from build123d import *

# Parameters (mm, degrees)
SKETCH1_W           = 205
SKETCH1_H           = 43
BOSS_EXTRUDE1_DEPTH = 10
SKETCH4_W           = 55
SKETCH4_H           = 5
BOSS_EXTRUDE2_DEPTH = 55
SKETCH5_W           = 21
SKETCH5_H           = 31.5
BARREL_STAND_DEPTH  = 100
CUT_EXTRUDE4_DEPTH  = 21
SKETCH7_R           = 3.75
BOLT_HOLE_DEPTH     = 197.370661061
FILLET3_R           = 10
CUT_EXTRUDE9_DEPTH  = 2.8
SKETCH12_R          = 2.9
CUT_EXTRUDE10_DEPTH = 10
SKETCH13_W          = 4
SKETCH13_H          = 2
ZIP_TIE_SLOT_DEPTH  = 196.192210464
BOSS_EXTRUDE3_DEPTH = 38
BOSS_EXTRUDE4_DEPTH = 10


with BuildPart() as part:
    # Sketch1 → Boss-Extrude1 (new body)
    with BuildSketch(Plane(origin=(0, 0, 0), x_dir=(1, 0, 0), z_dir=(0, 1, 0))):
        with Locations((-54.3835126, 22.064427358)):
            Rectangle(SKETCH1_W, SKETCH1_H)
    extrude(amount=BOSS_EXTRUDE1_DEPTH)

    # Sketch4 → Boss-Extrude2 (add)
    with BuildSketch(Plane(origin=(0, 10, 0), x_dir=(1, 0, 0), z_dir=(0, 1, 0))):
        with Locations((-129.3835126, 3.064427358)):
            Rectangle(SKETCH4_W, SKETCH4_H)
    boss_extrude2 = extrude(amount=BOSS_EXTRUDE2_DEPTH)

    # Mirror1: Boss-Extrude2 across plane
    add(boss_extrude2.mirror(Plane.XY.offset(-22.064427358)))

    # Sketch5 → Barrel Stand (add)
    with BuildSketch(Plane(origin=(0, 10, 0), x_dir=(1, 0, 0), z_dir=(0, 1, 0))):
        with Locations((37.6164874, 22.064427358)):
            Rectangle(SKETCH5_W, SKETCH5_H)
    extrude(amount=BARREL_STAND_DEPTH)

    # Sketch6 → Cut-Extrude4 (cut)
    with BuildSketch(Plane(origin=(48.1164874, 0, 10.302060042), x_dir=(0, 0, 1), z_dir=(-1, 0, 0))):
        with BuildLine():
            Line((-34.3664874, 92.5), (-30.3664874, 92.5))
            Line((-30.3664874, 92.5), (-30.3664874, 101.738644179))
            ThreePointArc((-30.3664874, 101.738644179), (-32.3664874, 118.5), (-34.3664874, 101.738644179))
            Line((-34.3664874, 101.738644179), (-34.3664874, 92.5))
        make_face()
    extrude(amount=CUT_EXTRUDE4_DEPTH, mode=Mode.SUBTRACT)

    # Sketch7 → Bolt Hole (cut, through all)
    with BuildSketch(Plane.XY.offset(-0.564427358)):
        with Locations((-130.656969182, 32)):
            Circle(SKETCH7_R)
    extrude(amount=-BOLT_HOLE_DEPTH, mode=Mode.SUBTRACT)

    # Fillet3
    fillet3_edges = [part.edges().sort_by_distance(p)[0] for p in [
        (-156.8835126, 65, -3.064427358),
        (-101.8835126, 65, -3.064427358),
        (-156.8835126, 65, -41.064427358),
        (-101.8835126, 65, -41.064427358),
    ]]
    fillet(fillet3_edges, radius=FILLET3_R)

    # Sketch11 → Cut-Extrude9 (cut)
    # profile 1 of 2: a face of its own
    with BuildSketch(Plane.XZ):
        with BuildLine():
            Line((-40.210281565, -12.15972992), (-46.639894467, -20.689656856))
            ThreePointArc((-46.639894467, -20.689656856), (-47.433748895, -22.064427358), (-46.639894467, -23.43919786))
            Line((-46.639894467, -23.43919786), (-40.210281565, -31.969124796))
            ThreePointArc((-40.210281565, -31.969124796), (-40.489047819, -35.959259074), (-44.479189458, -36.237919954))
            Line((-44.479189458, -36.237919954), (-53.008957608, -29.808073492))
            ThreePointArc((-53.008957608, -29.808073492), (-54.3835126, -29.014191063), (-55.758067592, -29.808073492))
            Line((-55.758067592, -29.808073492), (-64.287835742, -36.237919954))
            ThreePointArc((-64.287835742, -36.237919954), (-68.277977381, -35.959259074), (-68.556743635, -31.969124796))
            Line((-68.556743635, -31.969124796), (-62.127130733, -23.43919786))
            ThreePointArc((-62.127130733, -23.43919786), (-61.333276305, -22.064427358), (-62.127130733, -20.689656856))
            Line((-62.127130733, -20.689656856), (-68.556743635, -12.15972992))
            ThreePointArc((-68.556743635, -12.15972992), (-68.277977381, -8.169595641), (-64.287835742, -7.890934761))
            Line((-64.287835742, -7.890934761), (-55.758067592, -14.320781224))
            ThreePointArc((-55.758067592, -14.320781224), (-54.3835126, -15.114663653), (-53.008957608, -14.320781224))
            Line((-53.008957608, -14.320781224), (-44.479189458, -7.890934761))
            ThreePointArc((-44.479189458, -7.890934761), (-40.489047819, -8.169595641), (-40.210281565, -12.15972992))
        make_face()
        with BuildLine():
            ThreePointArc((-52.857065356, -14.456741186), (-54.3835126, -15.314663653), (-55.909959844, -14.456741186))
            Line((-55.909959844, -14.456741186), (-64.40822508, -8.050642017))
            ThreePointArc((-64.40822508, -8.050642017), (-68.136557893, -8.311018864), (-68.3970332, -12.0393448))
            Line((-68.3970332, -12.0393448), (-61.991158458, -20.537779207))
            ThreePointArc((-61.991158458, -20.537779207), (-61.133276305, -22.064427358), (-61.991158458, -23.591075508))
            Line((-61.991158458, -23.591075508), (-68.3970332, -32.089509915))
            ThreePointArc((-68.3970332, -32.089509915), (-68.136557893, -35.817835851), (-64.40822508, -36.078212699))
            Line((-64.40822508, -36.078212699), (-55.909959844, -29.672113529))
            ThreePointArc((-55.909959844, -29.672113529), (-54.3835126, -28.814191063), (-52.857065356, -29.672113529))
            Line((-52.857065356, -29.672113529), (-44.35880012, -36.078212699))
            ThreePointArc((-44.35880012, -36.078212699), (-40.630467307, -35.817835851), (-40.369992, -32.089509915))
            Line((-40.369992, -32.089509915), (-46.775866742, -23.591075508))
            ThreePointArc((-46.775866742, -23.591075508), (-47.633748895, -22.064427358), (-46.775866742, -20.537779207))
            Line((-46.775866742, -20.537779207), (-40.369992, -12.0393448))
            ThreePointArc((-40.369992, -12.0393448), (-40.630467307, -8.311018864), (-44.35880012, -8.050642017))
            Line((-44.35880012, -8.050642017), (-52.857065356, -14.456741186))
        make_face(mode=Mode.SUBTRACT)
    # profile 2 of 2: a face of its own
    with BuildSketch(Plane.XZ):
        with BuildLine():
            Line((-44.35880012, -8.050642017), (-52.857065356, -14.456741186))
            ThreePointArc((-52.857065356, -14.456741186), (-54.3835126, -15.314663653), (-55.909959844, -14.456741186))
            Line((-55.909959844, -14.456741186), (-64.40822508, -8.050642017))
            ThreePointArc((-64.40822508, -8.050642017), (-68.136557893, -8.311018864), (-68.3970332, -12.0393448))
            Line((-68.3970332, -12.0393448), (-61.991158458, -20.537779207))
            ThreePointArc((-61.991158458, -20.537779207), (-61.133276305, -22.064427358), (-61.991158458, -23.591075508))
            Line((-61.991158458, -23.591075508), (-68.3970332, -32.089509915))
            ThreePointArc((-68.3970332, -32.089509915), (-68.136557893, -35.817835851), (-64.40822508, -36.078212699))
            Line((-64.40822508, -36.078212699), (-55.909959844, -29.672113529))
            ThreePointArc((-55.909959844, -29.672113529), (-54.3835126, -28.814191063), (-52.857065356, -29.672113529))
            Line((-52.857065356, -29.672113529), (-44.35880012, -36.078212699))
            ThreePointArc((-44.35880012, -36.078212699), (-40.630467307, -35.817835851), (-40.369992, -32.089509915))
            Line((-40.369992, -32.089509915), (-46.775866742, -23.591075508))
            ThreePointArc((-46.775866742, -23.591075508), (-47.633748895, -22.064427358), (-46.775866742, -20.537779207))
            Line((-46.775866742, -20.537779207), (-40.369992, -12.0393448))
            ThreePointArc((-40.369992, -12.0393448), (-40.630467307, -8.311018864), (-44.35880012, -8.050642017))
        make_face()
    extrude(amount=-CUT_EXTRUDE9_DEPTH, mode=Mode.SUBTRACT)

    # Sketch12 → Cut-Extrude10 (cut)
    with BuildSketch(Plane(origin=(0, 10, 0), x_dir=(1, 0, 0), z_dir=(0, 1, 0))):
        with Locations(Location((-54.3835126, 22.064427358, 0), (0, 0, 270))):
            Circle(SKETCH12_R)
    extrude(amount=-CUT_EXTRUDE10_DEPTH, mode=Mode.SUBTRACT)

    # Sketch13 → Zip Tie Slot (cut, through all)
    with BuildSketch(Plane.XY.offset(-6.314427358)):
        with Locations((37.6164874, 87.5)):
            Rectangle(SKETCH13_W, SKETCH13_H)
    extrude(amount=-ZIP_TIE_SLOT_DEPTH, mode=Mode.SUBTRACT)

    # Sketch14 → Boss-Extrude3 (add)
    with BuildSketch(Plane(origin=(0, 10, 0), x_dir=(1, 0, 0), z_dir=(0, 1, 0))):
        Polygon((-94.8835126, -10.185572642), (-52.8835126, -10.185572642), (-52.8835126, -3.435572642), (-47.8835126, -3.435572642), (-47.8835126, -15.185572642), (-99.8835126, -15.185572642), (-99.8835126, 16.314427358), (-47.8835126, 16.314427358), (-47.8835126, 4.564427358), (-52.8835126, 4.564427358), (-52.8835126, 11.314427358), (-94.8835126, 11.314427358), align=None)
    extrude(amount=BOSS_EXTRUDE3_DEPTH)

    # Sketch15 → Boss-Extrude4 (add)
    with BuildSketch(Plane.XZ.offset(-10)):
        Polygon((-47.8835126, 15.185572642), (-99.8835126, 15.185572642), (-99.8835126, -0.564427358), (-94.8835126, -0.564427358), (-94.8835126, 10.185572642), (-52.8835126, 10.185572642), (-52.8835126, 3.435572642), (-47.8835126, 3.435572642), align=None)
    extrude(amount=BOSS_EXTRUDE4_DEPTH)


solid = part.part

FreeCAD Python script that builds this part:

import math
import FreeCAD as App
import Part
import Sketcher
Q = App.Units.Quantity


def edges_at(feature, points):
    """Names of the edges that pass closest to the given points."""
    edges = feature.Shape.Edges
    near = lambda p: min(range(len(edges)), key=lambda i: edges[i].distToShape(Part.Vertex(*p))[0])
    return sorted({f"Edge{near(p) + 1}" for p in points})


def add_polygon(sketch, points):
    """Adds a closed chain of lines whose ends are joined by coincident constraints."""
    first, n = sketch.GeometryCount, len(points)
    for a, b in zip(points, points[1:] + points[:1]):
        sketch.addGeometry(Part.LineSegment(App.Vector(*a, 0), App.Vector(*b, 0)), False)
    for i in range(n):
        sketch.addConstraint(Sketcher.Constraint("Coincident", first + i, 2, first + (i + 1) % n, 1))

doc = App.newDocument("Part")
body = doc.addObject("PartDesign::Body", "Body")

# Sketch on XZ plane
sketch1 = doc.addObject("Sketcher::SketchObject", "Sketch")
body.addObject(sketch1)
sketch1.AttachmentSupport = (doc.XZ_Plane, [""])
sketch1.MapMode = "FlatFace"
add_polygon(sketch1, [(-157, -44), (-157, -1), (48, -1), (48, -44)])  # lines 0-3
sketch1.addConstraint([
    Sketcher.Constraint("Vertical", 0),
    Sketcher.Constraint("Horizontal", 1),
    Sketcher.Constraint("Vertical", 2),
    Sketcher.Constraint("Horizontal", 3),
    Sketcher.Constraint("DistanceX", 1, 1, 1, 2, Q("205 mm")),
    Sketcher.Constraint("DistanceY", 0, 1, 0, 2, Q("43 mm")),
    Sketcher.Constraint("DistanceX", 0, 2, -1, 1, Q("156.883513 mm")),
    Sketcher.Constraint("DistanceY", 0, 2, -1, 1, Q("0.564427 mm")),
])
pad1 = doc.addObject("PartDesign::Pad", "Pad")
body.addObject(pad1)
pad1.Profile = sketch1
pad1.Length = 10
pad1.Reversed = True

# Sketch on XZ plane
sketch2 = doc.addObject("Sketcher::SketchObject", "Sketch001")
body.addObject(sketch2)
sketch2.AttachmentSupport = (doc.XZ_Plane, [""])
sketch2.MapMode = "FlatFace"
sketch2.AttachmentOffset = App.Placement(App.Vector(0, 0, -10), App.Rotation())
add_polygon(sketch2, [(-157, -6), (-157, -1), (-102, -1), (-102, -6)])  # lines 0-3
sketch2.addConstraint([
    Sketcher.Constraint("Vertical", 0),
    Sketcher.Constraint("Horizontal", 1),
    Sketcher.Constraint("Vertical", 2),
    Sketcher.Constraint("Horizontal", 3),
    Sketcher.Constraint("DistanceX", 1, 1, 1, 2, Q("55 mm")),
    Sketcher.Constraint("DistanceY", 0, 1, 0, 2, Q("5 mm")),
    Sketcher.Constraint("DistanceX", 0, 2, -1, 1, Q("156.883513 mm")),
    Sketcher.Constraint("DistanceY", 0, 2, -1, 1, Q("0.564427 mm")),
])
pad2 = doc.addObject("PartDesign::Pad", "Pad001")
body.addObject(pad2)
pad2.Profile = sketch2
pad2.Length = 55
pad2.Reversed = True
doc.recompute()

datumplane = doc.addObject("PartDesign::Plane", "DatumPlane")
body.addObject(datumplane)
datumplane.AttachmentSupport = (doc.XY_Plane, [""])
datumplane.MapMode = "FlatFace"
datumplane.AttachmentOffset = App.Placement(App.Vector(0, 0, -22.064427), App.Rotation())
mirrored = doc.addObject("PartDesign::Mirrored", "Mirrored")
body.addObject(mirrored)
mirrored.Originals = [pad2]
mirrored.MirrorPlane = (datumplane, [""])
body.Tip = mirrored

# Sketch on XZ plane
sketch3 = doc.addObject("Sketcher::SketchObject", "Sketch002")
body.addObject(sketch3)
sketch3.AttachmentSupport = (doc.XZ_Plane, [""])
sketch3.MapMode = "FlatFace"
sketch3.AttachmentOffset = App.Placement(App.Vector(0, 0, -10), App.Rotation())
add_polygon(sketch3, [(27, -38), (27, -6), (48, -6), (48, -38)])  # lines 0-3
sketch3.addConstraint([
    Sketcher.Constraint("Vertical", 0),
    Sketcher.Constraint("Horizontal", 1),
    Sketcher.Constraint("Vertical", 2),
    Sketcher.Constraint("Horizontal", 3),
    Sketcher.Constraint("DistanceX", 1, 1, 1, 2, Q("21 mm")),
    Sketcher.Constraint("DistanceY", 0, 1, 0, 2, Q("31.5 mm")),
    Sketcher.Constraint("DistanceX", -1, 1, 0, 2, Q("27.116487 mm")),
    Sketcher.Constraint("DistanceY", 0, 2, -1, 1, Q("6.314427 mm")),
])
pad3 = doc.addObject("PartDesign::Pad", "Pad002")
body.addObject(pad3)
pad3.Profile = sketch3
pad3.Length = 100
pad3.Reversed = True

# Sketch on YZ plane
sketch4 = doc.addObject("Sketcher::SketchObject", "Sketch003")
body.addObject(sketch4)
sketch4.AttachmentSupport = (doc.YZ_Plane, [""])
sketch4.MapMode = "FlatFace"
sketch4.AttachmentOffset = App.Placement(App.Vector(0, 0, 48.116487), App.Rotation())
sketch4.addGeometry([
    Part.LineSegment(App.Vector(92.5, -24.1, 0), App.Vector(92.5, -20.1, 0)),
    Part.LineSegment(App.Vector(92.5, -20.1, 0), App.Vector(101.7, -20.1, 0)),
    Part.ArcOfCircle(Part.Circle(App.Vector(110, -22.1, 0), App.Vector(0, 0, 1), 8.5), math.radians(-166), math.radians(166)),
    Part.LineSegment(App.Vector(101.7, -24.1, 0), App.Vector(92.5, -24.1, 0)),
], False)
sketch4.addConstraint([
    Sketcher.Constraint("Coincident", 0, 2, 1, 1),
    Sketcher.Constraint("Coincident", 1, 2, 2, 2),
    Sketcher.Constraint("Coincident", 2, 1, 3, 1),
    Sketcher.Constraint("Coincident", 3, 2, 0, 1),
    Sketcher.Constraint("Vertical", 0),
    Sketcher.Constraint("Horizontal", 1),
    Sketcher.Constraint("Horizontal", 3),
    Sketcher.Constraint("Vertical", 1, 2, 2, 1),
    Sketcher.Constraint("Radius", 2, Q("8.5 mm")),
    Sketcher.Constraint("DistanceY", 0, 1, 0, 2, Q("4 mm")),
    Sketcher.Constraint("DistanceX", -1, 1, 2, 3, Q("110 mm")),
    Sketcher.Constraint("DistanceX", -1, 1, 0, 2, Q("92.5 mm")),
    Sketcher.Constraint("DistanceY", 2, 3, -1, 1, Q("22.064427 mm")),
])
pocket1 = doc.addObject("PartDesign::Pocket", "Pocket")
body.addObject(pocket1)
pocket1.Profile = sketch4
pocket1.Length = 21

# Sketch on XY plane
sketch5 = doc.addObject("Sketcher::SketchObject", "Sketch004")
body.addObject(sketch5)
sketch5.AttachmentSupport = (doc.XY_Plane, [""])
sketch5.MapMode = "FlatFace"
sketch5.AttachmentOffset = App.Placement(App.Vector(0, 0, -0.564427), App.Rotation())
sketch5.addGeometry(Part.Circle(App.Vector(-130.7, 32, 0), App.Vector(0, 0, 1), 3.8), False)
sketch5.addConstraint([
    Sketcher.Constraint("Diameter", 0, Q("7.5 mm")),
    Sketcher.Constraint("DistanceY", -1, 1, 0, 3, Q("32 mm")),
    Sketcher.Constraint("DistanceX", 0, 3, -1, 1, Q("130.656969 mm")),
])
pocket2 = doc.addObject("PartDesign::Pocket", "Pocket001")
body.addObject(pocket2)
pocket2.Profile = sketch5
pocket2.Type = "ThroughAll"
doc.recompute()

fillet = doc.addObject("PartDesign::Fillet", "Fillet")
body.addObject(fillet)
fillet.Base = (pocket2, edges_at(pocket2, [
    (-156.884, 65, -3.064),
    (-101.884, 65, -3.064),
    (-156.884, 65, -41.064),
    (-101.884, 65, -41.064),
]))
fillet.Radius = 10

# Sketch on XZ plane
sketch6 = doc.addObject("Sketcher::SketchObject", "Sketch005")
body.addObject(sketch6)
sketch6.AttachmentSupport = (doc.XZ_Plane, [""])
sketch6.MapMode = "FlatFace"
sketch6.addGeometry([
    Part.LineSegment(App.Vector(-46.6, -20.7, 0), App.Vector(-40.2, -12.2, 0)),  # 0
    Part.ArcOfCircle(Part.Circle(App.Vector(-42.6, -10.3, 0), App.Vector(0, 0, 1), 3), math.radians(-37), math.radians(127)),  # 1
    Part.LineSegment(App.Vector(-44.5, -7.9, 0), App.Vector(-53, -14.3, 0)),  # 2
    Part.ArcOfCircle(Part.Circle(App.Vector(-54.4, -13.5, 0), App.Vector(0, 0, 1), 1.6), math.radians(-150), math.radians(-30)),  # 3
    Part.LineSegment(App.Vector(-55.8, -14.3, 0), App.Vector(-64.3, -7.9, 0)),  # 4
    Part.ArcOfCircle(Part.Circle(App.Vector(-66.1, -10.3, 0), App.Vector(0, 0, 1), 3), math.radians(53), math.radians(217)),  # 5
    Part.LineSegment(App.Vector(-68.6, -12.2, 0), App.Vector(-62.1, -20.7, 0)),  # 6
    Part.ArcOfCircle(Part.Circle(App.Vector(-62.9, -22.1, 0), App.Vector(0, 0, 1), 1.6), math.radians(-60), math.radians(60)),  # 7
    Part.LineSegment(App.Vector(-62.1, -23.4, 0), App.Vector(-68.6, -32, 0)),  # 8
    Part.ArcOfCircle(Part.Circle(App.Vector(-66.1, -33.8, 0), App.Vector(0, 0, 1), 3), math.radians(143), math.radians(307)),  # 9
    Part.LineSegment(App.Vector(-64.3, -36.2, 0), App.Vector(-55.8, -29.8, 0)),  # 10
    Part.ArcOfCircle(Part.Circle(App.Vector(-54.4, -30.6, 0), App.Vector(0, 0, 1), 1.6), math.radians(30), math.radians(150)),  # 11
    Part.LineSegment(App.Vector(-53, -29.8, 0), App.Vector(-44.5, -36.2, 0)),  # 12
    Part.ArcOfCircle(Part.Circle(App.Vector(-42.6, -33.8, 0), App.Vector(0, 0, 1), 3), math.radians(-127), math.radians(37)),  # 13
    Part.LineSegment(App.Vector(-40.2, -32, 0), App.Vector(-46.6, -23.4, 0)),  # 14
    Part.ArcOfCircle(Part.Circle(App.Vector(-45.8, -22.1, 0), App.Vector(0, 0, 1), 1.6), math.radians(120), math.radians(240)),  # 15
], False)
sketch6.addConstraint([
    Sketcher.Constraint("Tangent", 0, 2, 1, 1),
    Sketcher.Constraint("Tangent", 1, 2, 2, 1),
    Sketcher.Constraint("Coincident", 2, 2, 3, 2),
    Sketcher.Constraint("Coincident", 3, 1, 4, 1),
    Sketcher.Constraint("Tangent", 4, 2, 5, 1),
    Sketcher.Constraint("Tangent", 5, 2, 6, 1),
    Sketcher.Constraint("Coincident", 6, 2, 7, 2),
    Sketcher.Constraint("Coincident", 7, 1, 8, 1),
    Sketcher.Constraint("Tangent", 8, 2, 9, 1),
    Sketcher.Constraint("Tangent", 9, 2, 10, 1),
    Sketcher.Constraint("Coincident", 10, 2, 11, 2),
    Sketcher.Constraint("Coincident", 11, 1, 12, 1),
    Sketcher.Constraint("Tangent", 12, 2, 13, 1),
    Sketcher.Constraint("Tangent", 13, 2, 14, 1),
    Sketcher.Constraint("Coincident", 14, 2, 15, 2),
    Sketcher.Constraint("Coincident", 15, 1, 0, 1),
    Sketcher.Constraint("Equal", 1, 5),
    Sketcher.Constraint("Equal", 5, 9),
    Sketcher.Constraint("Equal", 3, 11),
    Sketcher.Constraint("Equal", 9, 13),
    Sketcher.Constraint("Equal", 7, 15),
    Sketcher.Constraint("Parallel", 0, 8),
    Sketcher.Constraint("Parallel", 2, 10),
    Sketcher.Constraint("Parallel", 4, 12),
    Sketcher.Constraint("Parallel", 6, 14),
    Sketcher.Constraint("Horizontal", 1, 3, 5, 3),
    Sketcher.Constraint("Horizontal", 9, 3, 13, 3),
    Sketcher.Constraint("Horizontal", 7, 3, 15, 3),
    Sketcher.Constraint("Horizontal", 2, 2, 3, 1),
    Sketcher.Constraint("Horizontal", 1, 2, 4, 2),
    Sketcher.Constraint("Horizontal", 0, 2, 5, 2),
    Sketcher.Constraint("Horizontal", 10, 2, 11, 1),
    Sketcher.Constraint("Horizontal", 7, 1, 14, 2),
    Sketcher.Constraint("Horizontal", 6, 2, 15, 1),
    Sketcher.Constraint("Vertical", 5, 3, 9, 3),
    Sketcher.Constraint("Vertical", 6, 2, 7, 1),
    Sketcher.Constraint("Vertical", 3, 1, 10, 2),
    Sketcher.Constraint("Radius", 1, Q("3.048134 mm")),
    Sketcher.Constraint("Radius", 3, Q("1.586917 mm")),
    Sketcher.Constraint("Radius", 7, Q("1.587318 mm")),
    Sketcher.Constraint("DistanceY", 2, 2, 1, 3, Q("3.995801 mm")),
    Sketcher.Constraint("Distance", 0, Q("10.68174 mm")),
    Sketcher.Constraint("DistanceY", 1, 3, -1, 1, Q("10.32498 mm")),
    Sketcher.Constraint("DistanceX", 5, 3, -1, 1, Q("66.12265 mm")),
    Sketcher.Constraint("DistanceX", 15, 3, -1, 1, Q("45.846431 mm")),
    Sketcher.Constraint("DistanceX", 0, 2, -1, 1, Q("40.210282 mm")),
    Sketcher.Constraint("DistanceY", 0, 2, -1, 1, Q("12.15973 mm")),
    Sketcher.Constraint("DistanceX", 1, 2, -1, 1, Q("44.479189 mm")),
])
pocket3 = doc.addObject("PartDesign::Pocket", "Pocket002")
body.addObject(pocket3)
pocket3.Profile = sketch6
pocket3.Length = 2.8

# Sketch on XZ plane
sketch7 = doc.addObject("Sketcher::SketchObject", "Sketch006")
body.addObject(sketch7)
sketch7.AttachmentSupport = (doc.XZ_Plane, [""])
sketch7.MapMode = "FlatFace"
sketch7.AttachmentOffset = App.Placement(App.Vector(0, 0, -10), App.Rotation())
sketch7.addGeometry(Part.Circle(App.Vector(-54.4, -22.1, 0), App.Vector(0, 0, 1), 2.9), False)
sketch7.addConstraint([
    Sketcher.Constraint("Diameter", 0, Q("5.8 mm")),
    Sketcher.Constraint("DistanceX", 0, 3, -1, 1, Q("54.383513 mm")),
    Sketcher.Constraint("DistanceY", 0, 3, -1, 1, Q("22.064427 mm")),
])
pocket4 = doc.addObject("PartDesign::Pocket", "Pocket003")
body.addObject(pocket4)
pocket4.Profile = sketch7
pocket4.Length = 10
pocket4.Reversed = True

# Sketch on XY plane
sketch8 = doc.addObject("Sketcher::SketchObject", "Sketch007")
body.addObject(sketch8)
sketch8.AttachmentSupport = (doc.XY_Plane, [""])
sketch8.MapMode = "FlatFace"
sketch8.AttachmentOffset = App.Placement(App.Vector(0, 0, -6.314427), App.Rotation())
add_polygon(sketch8, [(35.6, 88.5), (35.6, 86.5), (39.6, 86.5), (39.6, 88.5)])  # lines 0-3
sketch8.addConstraint([
    Sketcher.Constraint("Vertical", 0),
    Sketcher.Constraint("Horizontal", 1),
    Sketcher.Constraint("Vertical", 2),
    Sketcher.Constraint("Horizontal", 3),
    Sketcher.Constraint("DistanceX", 1, 1, 1, 2, Q("4 mm")),
    Sketcher.Constraint("DistanceY", 0, 2, 0, 1, Q("2 mm")),
    Sketcher.Constraint("DistanceY", -1, 1, 0, 2, Q("86.5 mm")),
    Sketcher.Constraint("DistanceX", -1, 1, 0, 2, Q("35.616487 mm")),
])
pocket5 = doc.addObject("PartDesign::Pocket", "Pocket004")
body.addObject(pocket5)
pocket5.Profile = sketch8
pocket5.Type = "ThroughAll"

# Sketch on XZ plane
sketch9 = doc.addObject("Sketcher::SketchObject", "Sketch008")
body.addObject(sketch9)
sketch9.AttachmentSupport = (doc.XZ_Plane, [""])
sketch9.MapMode = "FlatFace"
sketch9.AttachmentOffset = App.Placement(App.Vector(0, 0, -10), App.Rotation())
add_polygon(sketch9, [(-53, 10), (-95, 10), (-95, -11), (-53, -11), (-53, -5), (-48, -5), (-48, -16), (-100, -16), (-100, 15), (-48, 15), (-48, 3), (-53, 3)])  # lines 0-11
sketch9.addConstraint([
    Sketcher.Constraint("Horizontal", 0),
    Sketcher.Constraint("Vertical", 1),
    Sketcher.Constraint("Horizontal", 2),
    Sketcher.Constraint("Vertical", 3),
    Sketcher.Constraint("Horizontal", 4),
    Sketcher.Constraint("Vertical", 5),
    Sketcher.Constraint("Horizontal", 6),
    Sketcher.Constraint("Vertical", 7),
    Sketcher.Constraint("Horizontal", 8),
    Sketcher.Constraint("Vertical", 9),
    Sketcher.Constraint("Horizontal", 10),
    Sketcher.Constraint("Vertical", 11),
    Sketcher.Constraint("Vertical", 5, 2, 8, 2),
    Sketcher.Constraint("Vertical", 3, 2, 10, 2),
    Sketcher.Constraint("Equal", 5, 9),
    Sketcher.Constraint("Equal", 3, 11),
    Sketcher.Constraint("DistanceX", 0, 2, 0, 1, Q("42 mm")),
    Sketcher.Constraint("DistanceX", 4, 1, 4, 2, Q("5 mm")),
    Sketcher.Constraint("DistanceX", 6, 2, 6, 1, Q("52 mm")),
    Sketcher.Constraint("DistanceY", 1, 2, 1, 1, Q("21.5 mm")),
    Sketcher.Constraint("DistanceY", 7, 1, 7, 2, Q("31.5 mm")),
    Sketcher.Constraint("DistanceY", 4, 2, 9, 2, Q("8 mm")),
    Sketcher.Constraint("DistanceX", 0, 2, -1, 1, Q("94.883513 mm")),
    Sketcher.Constraint("DistanceY", -1, 1, 0, 2, Q("10.185573 mm")),
])
pad4 = doc.addObject("PartDesign::Pad", "Pad003")
body.addObject(pad4)
pad4.Profile = sketch9
pad4.Length = 38
pad4.Reversed = True

# Sketch on XZ plane
sketch10 = doc.addObject("Sketcher::SketchObject", "Sketch009")
body.addObject(sketch10)
sketch10.AttachmentSupport = (doc.XZ_Plane, [""])
sketch10.MapMode = "FlatFace"
sketch10.AttachmentOffset = App.Placement(App.Vector(0, 0, -10), App.Rotation())
add_polygon(sketch10, [(-48, 15), (-100, 15), (-100, -1), (-95, -1), (-95, 10), (-53, 10), (-53, 3), (-48, 3)])  # lines 0-7
sketch10.addConstraint([
    Sketcher.Constraint("Horizontal", 0),
    Sketcher.Constraint("Vertical", 1),
    Sketcher.Constraint("Horizontal", 2),
    Sketcher.Constraint("Vertical", 3),
    Sketcher.Constraint("Horizontal", 4),
    Sketcher.Constraint("Vertical", 5),
    Sketcher.Constraint("Horizontal", 6),
    Sketcher.Constraint("Vertical", 7),
    Sketcher.Constraint("Equal", 2, 6),
    Sketcher.Constraint("DistanceX", 0, 2, 0, 1, Q("52 mm")),
    Sketcher.Constraint("DistanceX", 2, 1, 2, 2, Q("5 mm")),
    Sketcher.Constraint("DistanceY", 3, 2, 0, 2, Q("5 mm")),
    Sketcher.Constraint("DistanceY", 2, 2, 5, 2, Q("4 mm")),
    Sketcher.Constraint("DistanceY", 1, 2, 1, 1, Q("15.75 mm")),
    Sketcher.Constraint("DistanceX", 0, 2, -1, 1, Q("99.883513 mm")),
    Sketcher.Constraint("DistanceY", -1, 1, 0, 2, Q("15.185573 mm")),
])
pad5 = doc.addObject("PartDesign::Pad", "Pad004")
body.addObject(pad5)
pad5.Profile = sketch10
pad5.Length = 10

doc.recompute()
